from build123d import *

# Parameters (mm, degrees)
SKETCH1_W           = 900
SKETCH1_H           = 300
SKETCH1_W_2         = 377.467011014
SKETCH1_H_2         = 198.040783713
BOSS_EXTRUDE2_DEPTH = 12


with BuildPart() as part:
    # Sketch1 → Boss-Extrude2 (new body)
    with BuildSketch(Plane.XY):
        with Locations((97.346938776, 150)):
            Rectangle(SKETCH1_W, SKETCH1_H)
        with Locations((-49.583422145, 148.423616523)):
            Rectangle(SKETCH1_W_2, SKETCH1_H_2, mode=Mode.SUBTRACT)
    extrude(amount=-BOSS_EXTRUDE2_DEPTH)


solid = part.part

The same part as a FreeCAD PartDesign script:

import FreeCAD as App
import Part
import Sketcher
Q = App.Units.Quantity

doc = App.newDocument("Part")
body = doc.addObject("PartDesign::Body", "Body")

sketch1 = body.newObject("Sketcher::SketchObject", "Sketch")
sketch1.AttachmentSupport = (doc.getObject("XY_Plane"), [""])
sketch1.MapMode = "FlatFace"
sketch1.addGeometry([
    Part.LineSegment(App.Vector(-353, 300, 0), App.Vector(-353, 0, 0)),
    Part.LineSegment(App.Vector(-353, 0, 0), App.Vector(547, 0, 0)),
    Part.LineSegment(App.Vector(547, 0, 0), App.Vector(547, 300, 0)),
    Part.LineSegment(App.Vector(547, 300, 0), App.Vector(-353, 300, 0)),
    Part.LineSegment(App.Vector(139, 49, 0), App.Vector(-238, 49, 0)),
    Part.LineSegment(App.Vector(-238, 49, 0), App.Vector(-238, 247, 0)),
    Part.LineSegment(App.Vector(-238, 247, 0), App.Vector(139, 247, 0)),
    Part.LineSegment(App.Vector(139, 247, 0), App.Vector(139, 49, 0)),
], False)
sketch1.addConstraint([
    Sketcher.Constraint("Coincident", 0, 2, 1, 1),
    Sketcher.Constraint("Coincident", 1, 2, 2, 1),
    Sketcher.Constraint("Coincident", 2, 2, 3, 1),
    Sketcher.Constraint("Coincident", 3, 2, 0, 1),
    Sketcher.Constraint("Coincident", 4, 2, 5, 1),
    Sketcher.Constraint("Coincident", 5, 2, 6, 1),
    Sketcher.Constraint("Coincident", 6, 2, 7, 1),
    Sketcher.Constraint("Coincident", 7, 2, 4, 1),
    Sketcher.Constraint("Vertical", 0),
    Sketcher.Constraint("Horizontal", 1),
    Sketcher.Constraint("Vertical", 2),
    Sketcher.Constraint("Horizontal", 3),
    Sketcher.Constraint("Horizontal", 4),
    Sketcher.Constraint("Vertical", 5),
    Sketcher.Constraint("Horizontal", 6),
    Sketcher.Constraint("Vertical", 7),
    Sketcher.Constraint("PointOnObject", 0, 2, -1),
    Sketcher.Constraint("DistanceX", 1, 1, 1, 2, Q("900 mm")),
    Sketcher.Constraint("DistanceY", 0, 2, 0, 1, Q("300 mm")),
    Sketcher.Constraint("DistanceX", 4, 2, 4, 1, Q("377.467011 mm")),
    Sketcher.Constraint("DistanceY", 5, 1, 5, 2, Q("198.040784 mm")),
    Sketcher.Constraint("DistanceX", 0, 2, -1, 1, Q("352.653061 mm")),
    Sketcher.Constraint("DistanceY", -1, 1, 5, 2, Q("247.444008 mm")),
    Sketcher.Constraint("DistanceX", 4, 2, -1, 1, Q("238.316928 mm")),
])
pad1 = body.newObject("PartDesign::Pad", "Pad")
pad1.Profile = sketch1
pad1.Length = 12
pad1.Reversed = True

doc.recompute()
